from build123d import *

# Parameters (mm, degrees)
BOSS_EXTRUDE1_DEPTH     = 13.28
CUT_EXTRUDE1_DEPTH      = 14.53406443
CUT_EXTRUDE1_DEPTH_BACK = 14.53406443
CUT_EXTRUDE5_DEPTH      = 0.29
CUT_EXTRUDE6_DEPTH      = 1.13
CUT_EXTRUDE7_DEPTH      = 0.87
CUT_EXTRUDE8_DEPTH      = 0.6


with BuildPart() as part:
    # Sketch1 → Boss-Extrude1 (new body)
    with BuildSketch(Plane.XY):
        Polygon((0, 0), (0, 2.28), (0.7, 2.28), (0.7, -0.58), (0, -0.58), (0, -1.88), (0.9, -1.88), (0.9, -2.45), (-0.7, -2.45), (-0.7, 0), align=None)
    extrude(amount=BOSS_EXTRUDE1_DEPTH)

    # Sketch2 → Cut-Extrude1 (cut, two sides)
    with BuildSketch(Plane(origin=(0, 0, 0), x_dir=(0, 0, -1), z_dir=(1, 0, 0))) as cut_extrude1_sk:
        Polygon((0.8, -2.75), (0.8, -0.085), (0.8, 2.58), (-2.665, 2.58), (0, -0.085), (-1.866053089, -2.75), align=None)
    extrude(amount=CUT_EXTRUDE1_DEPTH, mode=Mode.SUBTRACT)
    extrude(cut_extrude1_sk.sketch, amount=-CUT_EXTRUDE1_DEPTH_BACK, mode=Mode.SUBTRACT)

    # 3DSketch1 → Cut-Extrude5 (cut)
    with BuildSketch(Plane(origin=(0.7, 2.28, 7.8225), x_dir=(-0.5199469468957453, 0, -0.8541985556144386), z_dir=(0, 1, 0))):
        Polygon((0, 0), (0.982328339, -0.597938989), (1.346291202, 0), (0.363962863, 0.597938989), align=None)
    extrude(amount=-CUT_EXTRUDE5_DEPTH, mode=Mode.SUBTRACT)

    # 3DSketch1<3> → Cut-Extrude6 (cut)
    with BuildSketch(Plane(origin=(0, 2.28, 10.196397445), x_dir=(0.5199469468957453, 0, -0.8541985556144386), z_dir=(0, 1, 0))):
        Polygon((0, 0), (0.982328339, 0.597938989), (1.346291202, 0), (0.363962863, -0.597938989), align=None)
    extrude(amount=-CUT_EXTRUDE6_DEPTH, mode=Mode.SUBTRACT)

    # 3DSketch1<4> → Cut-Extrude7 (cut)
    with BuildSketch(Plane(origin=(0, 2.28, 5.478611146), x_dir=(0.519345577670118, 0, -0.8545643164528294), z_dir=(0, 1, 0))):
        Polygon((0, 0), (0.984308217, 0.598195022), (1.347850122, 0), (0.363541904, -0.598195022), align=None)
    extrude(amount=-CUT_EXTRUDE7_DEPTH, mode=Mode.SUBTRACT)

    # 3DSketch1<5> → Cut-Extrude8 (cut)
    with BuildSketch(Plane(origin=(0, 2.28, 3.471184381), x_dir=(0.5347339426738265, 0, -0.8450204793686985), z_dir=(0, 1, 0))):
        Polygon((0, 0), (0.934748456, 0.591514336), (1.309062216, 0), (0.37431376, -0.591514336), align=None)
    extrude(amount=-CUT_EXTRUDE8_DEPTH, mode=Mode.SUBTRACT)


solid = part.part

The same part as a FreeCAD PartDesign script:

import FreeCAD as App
import Part
import Sketcher

V = App.Vector
Q = App.Units.Quantity


def add_polygon(sketch, points):
    """Adds a closed chain of lines whose ends are joined by coincident constraints."""
    first, n = sketch.GeometryCount, len(points)
    for a, b in zip(points, points[1:] + points[:1]):
        sketch.addGeometry(Part.LineSegment(App.Vector(*a, 0), App.Vector(*b, 0)), False)
    for i in range(n):
        sketch.addConstraint(Sketcher.Constraint("Coincident", first + i, 2, first + (i + 1) % n, 1))

doc = App.newDocument("Part")
body = doc.addObject("PartDesign::Body", "Body")

# Sketch on XY plane
sketch1 = body.newObject("Sketcher::SketchObject", "Sketch")
sketch1.AttachmentSupport = (doc.getObject("XY_Plane"), [""])
sketch1.MapMode = "FlatFace"
add_polygon(sketch1, [(0, 2.3), (0, 0), (-0.7, 0), (-0.7, -2.5), (0.9, -2.5), (0.9, -1.9), (0, -1.9), (0, -0.6), (0.7, -0.6), (0.7, 2.3)])  # lines 0-9
sketch1.addConstraint([
    Sketcher.Constraint("Vertical", 0),
    Sketcher.Constraint("Horizontal", 1),
    Sketcher.Constraint("Vertical", 2),
    Sketcher.Constraint("Horizontal", 3),
    Sketcher.Constraint("Vertical", 4),
    Sketcher.Constraint("Horizontal", 5),
    Sketcher.Constraint("Vertical", 6),
    Sketcher.Constraint("Horizontal", 7),
    Sketcher.Constraint("Vertical", 8),
    Sketcher.Constraint("Horizontal", 9),
    Sketcher.Constraint("Coincident", 0, 2, -1, 1),
    Sketcher.Constraint("PointOnObject", 5, 2, -2),
    Sketcher.Constraint("Equal", 1, 7),
    Sketcher.Constraint("DistanceX", 1, 2, 1, 1, Q("0.7 mm")),
    Sketcher.Constraint("DistanceX", 3, 1, 3, 2, Q("1.6 mm")),
    Sketcher.Constraint("DistanceY", 6, 1, 6, 2, Q("1.3 mm")),
    Sketcher.Constraint("DistanceY", 0, 2, 0, 1, Q("2.28 mm")),
    Sketcher.Constraint("DistanceY", 2, 2, 2, 1, Q("2.45 mm")),
    Sketcher.Constraint("DistanceY", 4, 1, 4, 2, Q("0.57 mm")),
])
pad1 = body.newObject("PartDesign::Pad", "Pad")
pad1.Profile = sketch1
pad1.Length = 13.28

# Sketch on YZ plane
sketch2 = body.newObject("Sketcher::SketchObject", "Sketch001")
sketch2.AttachmentSupport = (doc.getObject("YZ_Plane"), [""])
sketch2.MapMode = "FlatFace"
add_polygon(sketch2, [(-2.8, -0.8), (2.6, -0.8), (2.6, 2.7), (-0.1, 0), (-2.8, 1.9)])  # lines 0-4
sketch2.addConstraint([
    Sketcher.Constraint("Horizontal", 0),
    Sketcher.Constraint("Vertical", 1),
    Sketcher.Constraint("Vertical", 4),
    Sketcher.Constraint("PointOnObject", 2, 2, -1),
    Sketcher.Constraint("Angle", 2, Q("-135 deg")),
    Sketcher.Constraint("Angle", 3, Q("145 deg")),
    Sketcher.Constraint("DistanceX", 0, 1, 0, 2, Q("5.33 mm")),
    Sketcher.Constraint("DistanceY", 0, 2, -1, 1, Q("0.8 mm")),
    Sketcher.Constraint("DistanceY", 1, 1, 1, 2, Q("3.465 mm")),
    Sketcher.Constraint("DistanceX", -1, 1, 0, 2, Q("2.58 mm")),
])
pocket1 = body.newObject("PartDesign::Pocket", "Pocket")
pocket1.Profile = sketch2
pocket1.Type = "ThroughAll"
pocket1.Midplane = True

# Sketch on XZ plane
sketch3 = body.newObject("Sketcher::SketchObject", "Sketch002")
sketch3.AttachmentSupport = (doc.getObject("XZ_Plane"), [""])
sketch3.MapMode = "FlatFace"
sketch3.AttachmentOffset = App.Placement(V(0, 0, -2.28), App.Rotation())
add_polygon(sketch3, [(0.7, 7.8), (0.7, 6.7), (0, 6.7), (0, 7.8)])  # lines 0-3
sketch3.addConstraint([
    Sketcher.Constraint("Vertical", 0),
    Sketcher.Constraint("Horizontal", 1),
    Sketcher.Constraint("Vertical", 2),
    Sketcher.Constraint("Horizontal", 3),
    Sketcher.Constraint("PointOnObject", 1, 2, -2),
    Sketcher.Constraint("DistanceX", 1, 2, 1, 1, Q("0.7 mm")),
    Sketcher.Constraint("DistanceY", 0, 2, 0, 1, Q("1.15 mm")),
    Sketcher.Constraint("DistanceY", -1, 1, 0, 2, Q("6.6725 mm")),
])
pocket2 = body.newObject("PartDesign::Pocket", "Pocket001")
pocket2.Profile = sketch3
pocket2.Length = 0.29
pocket2.Reversed = True

# Sketch on XZ plane
sketch4 = body.newObject("Sketcher::SketchObject", "Sketch003")
sketch4.AttachmentSupport = (doc.getObject("XZ_Plane"), [""])
sketch4.MapMode = "FlatFace"
sketch4.AttachmentOffset = App.Placement(V(0, 0, -2.28), App.Rotation())
add_polygon(sketch4, [(0, 9), (0, 10.2), (0.7, 10.2), (0.7, 9)])  # lines 0-3
sketch4.addConstraint([
    Sketcher.Constraint("Vertical", 0),
    Sketcher.Constraint("Horizontal", 1),
    Sketcher.Constraint("Vertical", 2),
    Sketcher.Constraint("Horizontal", 3),
    Sketcher.Constraint("PointOnObject", 0, 2, -2),
    Sketcher.Constraint("DistanceX", 1, 1, 1, 2, Q("0.7 mm")),
    Sketcher.Constraint("DistanceY", 0, 1, 0, 2, Q("1.15 mm")),
    Sketcher.Constraint("DistanceY", -1, 1, 0, 2, Q("10.196397 mm")),
])
pocket3 = body.newObject("PartDesign::Pocket", "Pocket002")
pocket3.Profile = sketch4
pocket3.Length = 1.13
pocket3.Reversed = True

# Sketch on XZ plane
sketch5 = body.newObject("Sketcher::SketchObject", "Sketch004")
sketch5.AttachmentSupport = (doc.getObject("XZ_Plane"), [""])
sketch5.MapMode = "FlatFace"
sketch5.AttachmentOffset = App.Placement(V(0, 0, -2.28), App.Rotation())
add_polygon(sketch5, [(0, 4.3), (0, 5.5), (0.7, 5.5), (0.7, 4.3)])  # lines 0-3
sketch5.addConstraint([
    Sketcher.Constraint("Vertical", 0),
    Sketcher.Constraint("Horizontal", 1),
    Sketcher.Constraint("Vertical", 2),
    Sketcher.Constraint("Horizontal", 3),
    Sketcher.Constraint("PointOnObject", 0, 2, -2),
    Sketcher.Constraint("DistanceX", 1, 1, 1, 2, Q("0.7 mm")),
    Sketcher.Constraint("DistanceY", 0, 1, 0, 2, Q("1.151825 mm")),
    Sketcher.Constraint("DistanceY", -1, 1, 0, 2, Q("5.478611 mm")),
])
pocket4 = body.newObject("PartDesign::Pocket", "Pocket003")
pocket4.Profile = sketch5
pocket4.Length = 0.87
pocket4.Reversed = True

# Sketch on XZ plane
sketch6 = body.newObject("Sketcher::SketchObject", "Sketch005")
sketch6.AttachmentSupport = (doc.getObject("XZ_Plane"), [""])
sketch6.MapMode = "FlatFace"
sketch6.AttachmentOffset = App.Placement(V(0, 0, -2.28), App.Rotation())
add_polygon(sketch6, [(0, 2.4), (0, 3.5), (0.7, 3.5), (0.7, 2.4)])  # lines 0-3
sketch6.addConstraint([
    Sketcher.Constraint("Vertical", 0),
    Sketcher.Constraint("Horizontal", 1),
    Sketcher.Constraint("Vertical", 2),
    Sketcher.Constraint("Horizontal", 3),
    Sketcher.Constraint("PointOnObject", 0, 2, -2),
    Sketcher.Constraint("DistanceX", 1, 1, 1, 2, Q("0.7 mm")),
    Sketcher.Constraint("DistanceY", -1, 1, 2, 2, Q("2.365 mm")),
    Sketcher.Constraint("DistanceY", 0, 1, 0, 2, Q("1.106184 mm")),
])
pocket5 = body.newObject("PartDesign::Pocket", "Pocket004")
pocket5.Profile = sketch6
pocket5.Length = 0.6
pocket5.Reversed = True

doc.recompute()
